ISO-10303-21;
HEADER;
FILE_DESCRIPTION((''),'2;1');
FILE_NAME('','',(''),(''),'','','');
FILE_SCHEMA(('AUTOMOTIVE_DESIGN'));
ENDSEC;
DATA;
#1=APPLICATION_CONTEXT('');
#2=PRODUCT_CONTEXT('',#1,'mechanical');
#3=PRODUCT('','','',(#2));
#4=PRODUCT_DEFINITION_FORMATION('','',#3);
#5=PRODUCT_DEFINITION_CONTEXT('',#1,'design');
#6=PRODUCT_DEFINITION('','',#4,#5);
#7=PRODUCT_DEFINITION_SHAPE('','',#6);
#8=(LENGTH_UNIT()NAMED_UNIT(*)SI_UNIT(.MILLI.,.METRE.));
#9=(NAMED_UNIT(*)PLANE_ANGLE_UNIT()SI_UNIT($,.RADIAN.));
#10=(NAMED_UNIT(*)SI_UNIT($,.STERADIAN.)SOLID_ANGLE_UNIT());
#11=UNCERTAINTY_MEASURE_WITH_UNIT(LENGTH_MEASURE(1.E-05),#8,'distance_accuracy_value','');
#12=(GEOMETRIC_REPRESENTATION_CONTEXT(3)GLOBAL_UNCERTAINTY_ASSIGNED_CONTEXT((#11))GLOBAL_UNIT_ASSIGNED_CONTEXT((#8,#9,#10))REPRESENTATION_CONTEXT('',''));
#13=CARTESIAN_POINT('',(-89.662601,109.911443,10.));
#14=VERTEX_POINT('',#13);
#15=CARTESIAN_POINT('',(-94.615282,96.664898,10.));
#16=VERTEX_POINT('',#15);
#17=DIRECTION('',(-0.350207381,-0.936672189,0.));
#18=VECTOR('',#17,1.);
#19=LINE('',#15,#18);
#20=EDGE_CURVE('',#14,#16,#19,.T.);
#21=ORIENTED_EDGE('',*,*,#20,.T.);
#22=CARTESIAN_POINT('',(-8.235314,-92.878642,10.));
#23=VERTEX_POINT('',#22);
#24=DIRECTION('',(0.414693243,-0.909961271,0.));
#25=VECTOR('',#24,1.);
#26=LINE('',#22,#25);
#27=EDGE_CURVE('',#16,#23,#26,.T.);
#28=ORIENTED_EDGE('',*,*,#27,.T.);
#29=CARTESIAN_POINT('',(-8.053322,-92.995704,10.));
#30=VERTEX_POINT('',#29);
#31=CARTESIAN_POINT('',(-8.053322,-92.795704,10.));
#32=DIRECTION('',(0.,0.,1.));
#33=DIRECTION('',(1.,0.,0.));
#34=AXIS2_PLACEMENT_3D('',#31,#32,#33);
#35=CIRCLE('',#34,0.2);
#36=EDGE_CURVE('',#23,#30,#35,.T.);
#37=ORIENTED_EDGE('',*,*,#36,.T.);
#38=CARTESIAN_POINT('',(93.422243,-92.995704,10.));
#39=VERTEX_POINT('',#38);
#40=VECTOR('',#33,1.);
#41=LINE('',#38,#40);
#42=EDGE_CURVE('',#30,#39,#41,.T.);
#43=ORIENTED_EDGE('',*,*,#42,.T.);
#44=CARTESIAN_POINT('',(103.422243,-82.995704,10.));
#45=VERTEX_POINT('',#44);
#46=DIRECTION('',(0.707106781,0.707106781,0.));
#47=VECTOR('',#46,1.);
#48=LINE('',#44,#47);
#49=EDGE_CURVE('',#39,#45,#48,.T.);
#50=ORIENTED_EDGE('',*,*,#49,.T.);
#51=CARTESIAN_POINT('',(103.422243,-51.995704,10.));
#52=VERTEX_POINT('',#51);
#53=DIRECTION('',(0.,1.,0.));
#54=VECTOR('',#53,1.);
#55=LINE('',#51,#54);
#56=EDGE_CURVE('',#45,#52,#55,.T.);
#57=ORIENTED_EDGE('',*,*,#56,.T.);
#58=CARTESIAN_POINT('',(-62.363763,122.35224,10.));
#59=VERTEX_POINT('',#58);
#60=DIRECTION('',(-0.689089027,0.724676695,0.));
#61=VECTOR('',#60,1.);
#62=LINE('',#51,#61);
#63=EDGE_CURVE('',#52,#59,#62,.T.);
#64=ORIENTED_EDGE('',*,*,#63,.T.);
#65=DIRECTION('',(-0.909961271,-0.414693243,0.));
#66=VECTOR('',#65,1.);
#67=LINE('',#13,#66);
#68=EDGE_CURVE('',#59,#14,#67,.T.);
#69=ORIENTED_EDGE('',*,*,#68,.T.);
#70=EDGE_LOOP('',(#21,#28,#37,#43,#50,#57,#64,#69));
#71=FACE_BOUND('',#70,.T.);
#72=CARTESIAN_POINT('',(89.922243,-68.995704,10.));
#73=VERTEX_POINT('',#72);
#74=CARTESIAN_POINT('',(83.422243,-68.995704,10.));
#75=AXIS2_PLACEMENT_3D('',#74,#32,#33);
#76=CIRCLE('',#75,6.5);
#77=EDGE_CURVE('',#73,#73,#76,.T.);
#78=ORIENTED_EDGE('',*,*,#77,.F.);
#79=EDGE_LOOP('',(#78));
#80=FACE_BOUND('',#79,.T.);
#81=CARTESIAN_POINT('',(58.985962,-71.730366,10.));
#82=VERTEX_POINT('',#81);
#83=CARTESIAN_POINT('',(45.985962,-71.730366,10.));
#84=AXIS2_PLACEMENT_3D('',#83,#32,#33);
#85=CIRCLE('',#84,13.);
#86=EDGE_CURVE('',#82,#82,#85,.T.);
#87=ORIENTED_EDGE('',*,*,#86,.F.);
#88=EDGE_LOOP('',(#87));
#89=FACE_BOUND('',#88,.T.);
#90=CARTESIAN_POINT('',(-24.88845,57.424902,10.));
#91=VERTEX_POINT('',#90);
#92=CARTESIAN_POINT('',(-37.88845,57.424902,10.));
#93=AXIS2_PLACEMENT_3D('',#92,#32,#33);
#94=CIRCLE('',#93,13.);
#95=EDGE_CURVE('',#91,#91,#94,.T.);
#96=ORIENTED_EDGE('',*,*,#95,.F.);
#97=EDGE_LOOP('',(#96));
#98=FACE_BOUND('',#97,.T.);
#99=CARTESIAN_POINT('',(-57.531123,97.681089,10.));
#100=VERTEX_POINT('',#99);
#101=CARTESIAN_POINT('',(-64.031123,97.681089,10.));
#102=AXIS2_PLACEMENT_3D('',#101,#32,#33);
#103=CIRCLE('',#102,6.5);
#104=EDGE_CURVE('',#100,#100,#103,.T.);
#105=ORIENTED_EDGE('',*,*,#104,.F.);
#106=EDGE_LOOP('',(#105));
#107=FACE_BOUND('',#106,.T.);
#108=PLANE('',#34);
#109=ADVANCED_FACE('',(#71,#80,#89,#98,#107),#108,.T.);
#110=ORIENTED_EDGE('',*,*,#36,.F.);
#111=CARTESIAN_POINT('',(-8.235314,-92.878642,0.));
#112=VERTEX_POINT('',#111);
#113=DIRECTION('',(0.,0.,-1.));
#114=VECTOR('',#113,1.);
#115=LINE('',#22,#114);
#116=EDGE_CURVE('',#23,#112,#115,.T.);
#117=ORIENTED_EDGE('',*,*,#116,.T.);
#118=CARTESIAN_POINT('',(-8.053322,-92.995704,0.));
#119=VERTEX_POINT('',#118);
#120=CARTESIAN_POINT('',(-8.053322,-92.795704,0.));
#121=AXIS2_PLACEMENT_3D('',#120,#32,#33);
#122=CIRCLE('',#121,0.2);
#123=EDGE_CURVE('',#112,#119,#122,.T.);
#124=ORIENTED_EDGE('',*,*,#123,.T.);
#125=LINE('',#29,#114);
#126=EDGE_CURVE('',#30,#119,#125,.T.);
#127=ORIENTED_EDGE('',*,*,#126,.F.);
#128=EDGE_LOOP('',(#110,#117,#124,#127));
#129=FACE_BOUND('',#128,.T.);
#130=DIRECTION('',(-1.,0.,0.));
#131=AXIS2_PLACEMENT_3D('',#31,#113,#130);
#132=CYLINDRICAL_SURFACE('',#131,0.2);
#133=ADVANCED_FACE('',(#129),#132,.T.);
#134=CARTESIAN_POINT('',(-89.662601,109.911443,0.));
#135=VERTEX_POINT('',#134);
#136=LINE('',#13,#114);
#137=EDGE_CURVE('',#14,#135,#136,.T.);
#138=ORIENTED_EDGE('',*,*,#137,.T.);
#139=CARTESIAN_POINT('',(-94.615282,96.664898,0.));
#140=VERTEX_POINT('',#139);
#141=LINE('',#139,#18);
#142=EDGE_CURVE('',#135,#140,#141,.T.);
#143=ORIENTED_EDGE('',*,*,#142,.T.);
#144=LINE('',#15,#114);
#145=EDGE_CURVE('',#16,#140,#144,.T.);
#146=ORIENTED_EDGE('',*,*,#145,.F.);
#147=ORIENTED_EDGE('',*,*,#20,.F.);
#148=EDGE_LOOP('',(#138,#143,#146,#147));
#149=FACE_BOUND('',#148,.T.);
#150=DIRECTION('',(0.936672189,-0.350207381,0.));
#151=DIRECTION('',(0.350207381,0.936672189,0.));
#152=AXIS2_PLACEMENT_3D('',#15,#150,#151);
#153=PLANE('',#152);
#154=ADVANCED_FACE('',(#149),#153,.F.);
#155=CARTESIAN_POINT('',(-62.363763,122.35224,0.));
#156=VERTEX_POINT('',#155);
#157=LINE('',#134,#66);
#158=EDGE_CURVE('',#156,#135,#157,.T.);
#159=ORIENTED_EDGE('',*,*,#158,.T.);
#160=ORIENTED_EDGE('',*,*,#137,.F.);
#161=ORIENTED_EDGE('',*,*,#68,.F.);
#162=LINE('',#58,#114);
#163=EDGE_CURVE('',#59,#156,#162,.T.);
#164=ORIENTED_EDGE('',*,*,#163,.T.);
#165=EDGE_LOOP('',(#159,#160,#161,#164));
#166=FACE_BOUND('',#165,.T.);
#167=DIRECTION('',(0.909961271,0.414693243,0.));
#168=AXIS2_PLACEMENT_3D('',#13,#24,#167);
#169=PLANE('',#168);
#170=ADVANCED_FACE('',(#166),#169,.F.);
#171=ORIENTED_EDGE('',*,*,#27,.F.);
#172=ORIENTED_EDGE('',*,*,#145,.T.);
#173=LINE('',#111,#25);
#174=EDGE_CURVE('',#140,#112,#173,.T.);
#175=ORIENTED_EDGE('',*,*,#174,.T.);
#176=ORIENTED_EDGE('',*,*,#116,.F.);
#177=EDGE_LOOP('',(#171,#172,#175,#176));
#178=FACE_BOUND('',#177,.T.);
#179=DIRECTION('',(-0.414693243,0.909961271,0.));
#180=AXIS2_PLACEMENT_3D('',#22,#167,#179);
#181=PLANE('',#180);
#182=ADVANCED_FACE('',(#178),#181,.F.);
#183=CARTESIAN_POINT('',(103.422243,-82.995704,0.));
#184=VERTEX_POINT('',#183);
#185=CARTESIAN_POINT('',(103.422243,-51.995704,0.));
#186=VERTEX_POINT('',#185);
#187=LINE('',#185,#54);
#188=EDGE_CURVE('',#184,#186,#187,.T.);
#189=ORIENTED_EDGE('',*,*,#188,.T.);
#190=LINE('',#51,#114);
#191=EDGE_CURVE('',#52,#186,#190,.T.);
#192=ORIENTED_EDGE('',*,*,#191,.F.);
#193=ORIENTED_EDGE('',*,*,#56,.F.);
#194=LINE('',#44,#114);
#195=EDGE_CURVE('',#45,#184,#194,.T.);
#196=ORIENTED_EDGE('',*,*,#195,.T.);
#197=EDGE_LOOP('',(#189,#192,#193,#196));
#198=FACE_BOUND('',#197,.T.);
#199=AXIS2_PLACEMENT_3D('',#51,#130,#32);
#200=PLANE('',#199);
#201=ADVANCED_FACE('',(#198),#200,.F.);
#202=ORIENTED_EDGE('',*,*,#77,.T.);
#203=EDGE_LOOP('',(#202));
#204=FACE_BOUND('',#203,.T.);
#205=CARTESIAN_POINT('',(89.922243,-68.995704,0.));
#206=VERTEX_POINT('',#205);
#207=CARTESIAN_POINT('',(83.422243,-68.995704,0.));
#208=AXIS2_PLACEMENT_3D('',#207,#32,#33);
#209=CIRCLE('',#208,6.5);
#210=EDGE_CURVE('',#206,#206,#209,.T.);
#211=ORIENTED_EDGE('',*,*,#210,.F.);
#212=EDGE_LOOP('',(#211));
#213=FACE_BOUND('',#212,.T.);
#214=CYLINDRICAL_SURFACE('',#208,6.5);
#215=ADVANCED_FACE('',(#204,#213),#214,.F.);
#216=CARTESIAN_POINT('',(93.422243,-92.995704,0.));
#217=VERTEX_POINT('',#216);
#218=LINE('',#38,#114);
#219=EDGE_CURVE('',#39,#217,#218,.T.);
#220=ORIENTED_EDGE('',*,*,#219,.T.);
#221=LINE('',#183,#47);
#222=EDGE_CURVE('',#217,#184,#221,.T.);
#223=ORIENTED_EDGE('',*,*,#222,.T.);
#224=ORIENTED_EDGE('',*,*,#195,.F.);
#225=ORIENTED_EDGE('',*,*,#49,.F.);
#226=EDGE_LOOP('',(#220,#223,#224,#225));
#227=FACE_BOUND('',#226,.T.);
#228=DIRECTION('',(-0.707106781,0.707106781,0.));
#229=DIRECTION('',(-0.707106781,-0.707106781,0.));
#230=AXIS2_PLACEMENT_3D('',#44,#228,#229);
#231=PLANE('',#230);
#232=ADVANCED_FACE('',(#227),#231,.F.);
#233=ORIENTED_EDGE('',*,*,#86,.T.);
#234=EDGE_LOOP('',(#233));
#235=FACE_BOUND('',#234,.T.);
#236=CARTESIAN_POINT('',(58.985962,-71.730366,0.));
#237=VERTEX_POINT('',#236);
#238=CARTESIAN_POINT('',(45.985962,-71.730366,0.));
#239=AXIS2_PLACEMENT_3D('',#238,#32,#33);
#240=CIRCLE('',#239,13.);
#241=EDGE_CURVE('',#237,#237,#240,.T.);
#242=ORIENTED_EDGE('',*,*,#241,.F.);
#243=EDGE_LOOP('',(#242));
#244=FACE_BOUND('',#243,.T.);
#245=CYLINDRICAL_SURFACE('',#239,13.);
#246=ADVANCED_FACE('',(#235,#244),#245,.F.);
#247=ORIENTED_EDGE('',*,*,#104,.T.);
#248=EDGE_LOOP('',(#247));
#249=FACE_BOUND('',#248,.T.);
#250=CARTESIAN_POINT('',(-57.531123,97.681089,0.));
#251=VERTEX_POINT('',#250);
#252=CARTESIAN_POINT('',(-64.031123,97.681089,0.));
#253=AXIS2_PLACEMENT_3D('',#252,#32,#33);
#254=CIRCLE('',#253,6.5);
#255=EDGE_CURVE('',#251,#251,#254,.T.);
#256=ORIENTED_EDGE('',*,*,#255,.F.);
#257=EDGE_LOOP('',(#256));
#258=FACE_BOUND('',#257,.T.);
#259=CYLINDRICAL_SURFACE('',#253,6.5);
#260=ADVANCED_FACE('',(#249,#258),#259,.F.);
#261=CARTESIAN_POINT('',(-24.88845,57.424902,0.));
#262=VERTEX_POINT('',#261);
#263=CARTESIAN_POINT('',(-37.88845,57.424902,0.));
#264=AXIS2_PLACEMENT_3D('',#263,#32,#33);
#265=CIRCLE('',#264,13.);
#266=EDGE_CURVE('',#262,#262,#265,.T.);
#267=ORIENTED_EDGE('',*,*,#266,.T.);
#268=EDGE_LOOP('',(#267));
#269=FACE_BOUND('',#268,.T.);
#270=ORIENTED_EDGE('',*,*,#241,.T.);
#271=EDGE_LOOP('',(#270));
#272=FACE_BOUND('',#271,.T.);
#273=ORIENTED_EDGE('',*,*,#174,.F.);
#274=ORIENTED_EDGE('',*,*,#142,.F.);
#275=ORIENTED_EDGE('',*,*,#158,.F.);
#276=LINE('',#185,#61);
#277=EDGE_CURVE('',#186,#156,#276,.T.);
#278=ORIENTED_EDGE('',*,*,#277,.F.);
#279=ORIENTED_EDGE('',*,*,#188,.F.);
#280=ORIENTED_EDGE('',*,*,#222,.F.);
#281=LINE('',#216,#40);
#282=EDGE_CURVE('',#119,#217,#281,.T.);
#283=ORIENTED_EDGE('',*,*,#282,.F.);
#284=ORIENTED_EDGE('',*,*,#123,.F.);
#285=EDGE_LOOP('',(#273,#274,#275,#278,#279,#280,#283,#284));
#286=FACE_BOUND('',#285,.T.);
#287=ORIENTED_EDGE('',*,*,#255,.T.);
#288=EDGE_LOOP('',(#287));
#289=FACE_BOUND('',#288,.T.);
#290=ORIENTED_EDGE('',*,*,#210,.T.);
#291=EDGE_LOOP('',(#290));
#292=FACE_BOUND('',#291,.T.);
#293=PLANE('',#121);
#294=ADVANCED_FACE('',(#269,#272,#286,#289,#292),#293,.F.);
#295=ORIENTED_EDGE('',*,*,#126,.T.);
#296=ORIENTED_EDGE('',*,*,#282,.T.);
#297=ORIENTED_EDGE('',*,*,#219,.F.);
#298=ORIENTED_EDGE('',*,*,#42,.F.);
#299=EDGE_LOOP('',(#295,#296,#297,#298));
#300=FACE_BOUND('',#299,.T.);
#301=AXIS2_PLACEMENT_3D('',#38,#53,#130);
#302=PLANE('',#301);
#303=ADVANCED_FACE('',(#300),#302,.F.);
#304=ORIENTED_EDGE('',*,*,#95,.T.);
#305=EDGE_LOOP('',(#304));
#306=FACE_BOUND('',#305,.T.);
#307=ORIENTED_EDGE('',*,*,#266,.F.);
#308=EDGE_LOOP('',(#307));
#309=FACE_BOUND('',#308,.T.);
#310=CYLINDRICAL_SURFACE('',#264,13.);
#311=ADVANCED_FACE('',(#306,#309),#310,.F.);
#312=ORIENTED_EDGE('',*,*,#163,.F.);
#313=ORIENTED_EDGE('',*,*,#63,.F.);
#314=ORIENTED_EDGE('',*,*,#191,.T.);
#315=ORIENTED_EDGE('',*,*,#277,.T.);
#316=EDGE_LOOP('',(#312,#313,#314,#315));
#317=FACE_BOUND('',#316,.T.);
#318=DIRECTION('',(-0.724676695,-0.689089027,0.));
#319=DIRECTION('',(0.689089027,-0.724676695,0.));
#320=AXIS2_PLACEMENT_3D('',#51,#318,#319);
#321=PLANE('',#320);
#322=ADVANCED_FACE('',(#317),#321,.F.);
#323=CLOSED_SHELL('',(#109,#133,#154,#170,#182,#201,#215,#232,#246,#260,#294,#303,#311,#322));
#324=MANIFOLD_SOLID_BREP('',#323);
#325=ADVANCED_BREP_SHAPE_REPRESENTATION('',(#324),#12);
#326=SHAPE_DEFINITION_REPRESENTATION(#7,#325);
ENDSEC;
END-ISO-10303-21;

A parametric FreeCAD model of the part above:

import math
import FreeCAD as App
import Part
import Sketcher
Q = App.Units.Quantity

doc = App.newDocument("Part")
body = doc.addObject("PartDesign::Body", "Body")

# Sketch on XY plane
sketch1 = doc.addObject("Sketcher::SketchObject", "Sketch")
body.addObject(sketch1)
sketch1.AttachmentSupport = (doc.XY_Plane, [""])
sketch1.MapMode = "FlatFace"
sketch1.addGeometry(Part.LineSegment(App.Vector(103.42, -83, 0), App.Vector(103.42, -52, 0)), False)
sketch1.addGeometry(Part.LineSegment(App.Vector(103.42, -52, 0), App.Vector(-62.36, 122.35, 0)), False)
sketch1.addGeometry(Part.LineSegment(App.Vector(-62.36, 122.35, 0), App.Vector(-89.66, 109.91, 0)), False)
sketch1.addGeometry(Part.LineSegment(App.Vector(-89.66, 109.91, 0), App.Vector(-94.62, 96.66, 0)), False)
sketch1.addGeometry(Part.LineSegment(App.Vector(-94.62, 96.66, 0), App.Vector(-8.24, -92.88, 0)), False)
sketch1.addGeometry(Part.ArcOfCircle(Part.Circle(App.Vector(-8.05, -92.8, 0), App.Vector(0, 0, 1), 0.2), math.radians(-156), math.radians(-90)), False)
sketch1.addGeometry(Part.LineSegment(App.Vector(-8.05, -93, 0), App.Vector(93.42, -93, 0)), False)
sketch1.addGeometry(Part.LineSegment(App.Vector(93.42, -93, 0), App.Vector(103.42, -83, 0)), False)
sketch1.addConstraint(Sketcher.Constraint("Coincident", 0, 2, 1, 1))
sketch1.addConstraint(Sketcher.Constraint("Coincident", 1, 2, 2, 1))
sketch1.addConstraint(Sketcher.Constraint("Coincident", 2, 2, 3, 1))
sketch1.addConstraint(Sketcher.Constraint("Coincident", 3, 2, 4, 1))
sketch1.addConstraint(Sketcher.Constraint("Tangent", 4, 2, 5, 1))
sketch1.addConstraint(Sketcher.Constraint("Tangent", 5, 2, 6, 1))
sketch1.addConstraint(Sketcher.Constraint("Coincident", 6, 2, 7, 1))
sketch1.addConstraint(Sketcher.Constraint("Coincident", 7, 2, 0, 1))
sketch1.addConstraint(Sketcher.Constraint("Vertical", 0))
sketch1.addConstraint(Sketcher.Constraint("Horizontal", 6))
sketch1.addConstraint(Sketcher.Constraint("Perpendicular", 2, 4))
sketch1.addConstraint(Sketcher.Constraint("Equal", 3, 7))
sketch1.addConstraint(Sketcher.Constraint("Radius", 5, Q("0.2 mm")))
sketch1.addConstraint(Sketcher.Constraint("DistanceY", 0, 1, 0, 2, Q("31 mm")))
sketch1.addConstraint(Sketcher.Constraint("Angle", 7, Q("45 deg")))
sketch1.addConstraint(Sketcher.Constraint("Distance", 2, Q("30 mm")))
sketch1.addConstraint(Sketcher.Constraint("Angle", 2, Q("-155.5 deg")))
sketch1.addConstraint(Sketcher.Constraint("Angle", 3, Q("-110.5 deg")))
sketch1.addConstraint(Sketcher.Constraint("DistanceY", 5, 2, 0, 2, Q("41 mm")))
sketch1.addConstraint(Sketcher.Constraint("DistanceX", 2, 2, -1, 1, Q("89.662601 mm")))
sketch1.addConstraint(Sketcher.Constraint("DistanceY", 5, 3, 3, 2, Q("189.460601 mm")))
sketch1.addConstraint(Sketcher.Constraint("Distance", 1, Q("240.587209 mm")))
sketch1.addConstraint(Sketcher.Constraint("DistanceY", -1, 1, 1, 2, Q("122.35224 mm")))
pad1 = doc.addObject("PartDesign::Pad", "Pad")
body.addObject(pad1)
pad1.Profile = sketch1
pad1.Length = 10

# Sketch on XY plane
sketch2 = doc.addObject("Sketcher::SketchObject", "Sketch001")
body.addObject(sketch2)
sketch2.AttachmentSupport = (doc.XY_Plane, [""])
sketch2.MapMode = "FlatFace"
sketch2.AttachmentOffset = App.Placement(App.Vector(0, 0, 10), App.Rotation())
sketch2.addGeometry(Part.Circle(App.Vector(83, -69, 0), App.Vector(0, 0, 1), 6), False)
sketch2.addGeometry(Part.Circle(App.Vector(-64, 98, 0), App.Vector(0, 0, 1), 6), False)
sketch2.addGeometry(Part.Circle(App.Vector(-38, 57, 0), App.Vector(0, 0, 1), 13), False)
sketch2.addGeometry(Part.Circle(App.Vector(46, -72, 0), App.Vector(0, 0, 1), 13), False)
sketch2.addConstraint(Sketcher.Constraint("Equal", 0, 1))
sketch2.addConstraint(Sketcher.Constraint("Equal", 2, 3))
sketch2.addConstraint(Sketcher.Constraint("Diameter", 0, Q("13 mm")))
sketch2.addConstraint(Sketcher.Constraint("Diameter", 2, Q("26 mm")))
sketch2.addConstraint(Sketcher.Constraint("DistanceY", -1, 1, 2, 3, Q("57.424902 mm")))
sketch2.addConstraint(Sketcher.Constraint("DistanceY", -1, 1, 1, 3, Q("97.681089 mm")))
sketch2.addConstraint(Sketcher.Constraint("DistanceX", 2, 3, -1, 1, Q("37.88845 mm")))
sketch2.addConstraint(Sketcher.Constraint("DistanceX", -1, 1, 3, 3, Q("45.985962 mm")))
sketch2.addConstraint(Sketcher.Constraint("DistanceX", 3, 3, 0, 3, Q("37.436281 mm")))
sketch2.addConstraint(Sketcher.Constraint("DistanceY", 0, 3, -1, 1, Q("68.995704 mm")))
sketch2.addConstraint(Sketcher.Constraint("DistanceX", 1, 3, -1, 1, Q("64.031123 mm")))
sketch2.addConstraint(Sketcher.Constraint("DistanceY", 3, 3, -1, 1, Q("71.730366 mm")))
pocket1 = doc.addObject("PartDesign::Pocket", "Pocket")
body.addObject(pocket1)
pocket1.Profile = sketch2
pocket1.Length = 10

doc.recompute()
